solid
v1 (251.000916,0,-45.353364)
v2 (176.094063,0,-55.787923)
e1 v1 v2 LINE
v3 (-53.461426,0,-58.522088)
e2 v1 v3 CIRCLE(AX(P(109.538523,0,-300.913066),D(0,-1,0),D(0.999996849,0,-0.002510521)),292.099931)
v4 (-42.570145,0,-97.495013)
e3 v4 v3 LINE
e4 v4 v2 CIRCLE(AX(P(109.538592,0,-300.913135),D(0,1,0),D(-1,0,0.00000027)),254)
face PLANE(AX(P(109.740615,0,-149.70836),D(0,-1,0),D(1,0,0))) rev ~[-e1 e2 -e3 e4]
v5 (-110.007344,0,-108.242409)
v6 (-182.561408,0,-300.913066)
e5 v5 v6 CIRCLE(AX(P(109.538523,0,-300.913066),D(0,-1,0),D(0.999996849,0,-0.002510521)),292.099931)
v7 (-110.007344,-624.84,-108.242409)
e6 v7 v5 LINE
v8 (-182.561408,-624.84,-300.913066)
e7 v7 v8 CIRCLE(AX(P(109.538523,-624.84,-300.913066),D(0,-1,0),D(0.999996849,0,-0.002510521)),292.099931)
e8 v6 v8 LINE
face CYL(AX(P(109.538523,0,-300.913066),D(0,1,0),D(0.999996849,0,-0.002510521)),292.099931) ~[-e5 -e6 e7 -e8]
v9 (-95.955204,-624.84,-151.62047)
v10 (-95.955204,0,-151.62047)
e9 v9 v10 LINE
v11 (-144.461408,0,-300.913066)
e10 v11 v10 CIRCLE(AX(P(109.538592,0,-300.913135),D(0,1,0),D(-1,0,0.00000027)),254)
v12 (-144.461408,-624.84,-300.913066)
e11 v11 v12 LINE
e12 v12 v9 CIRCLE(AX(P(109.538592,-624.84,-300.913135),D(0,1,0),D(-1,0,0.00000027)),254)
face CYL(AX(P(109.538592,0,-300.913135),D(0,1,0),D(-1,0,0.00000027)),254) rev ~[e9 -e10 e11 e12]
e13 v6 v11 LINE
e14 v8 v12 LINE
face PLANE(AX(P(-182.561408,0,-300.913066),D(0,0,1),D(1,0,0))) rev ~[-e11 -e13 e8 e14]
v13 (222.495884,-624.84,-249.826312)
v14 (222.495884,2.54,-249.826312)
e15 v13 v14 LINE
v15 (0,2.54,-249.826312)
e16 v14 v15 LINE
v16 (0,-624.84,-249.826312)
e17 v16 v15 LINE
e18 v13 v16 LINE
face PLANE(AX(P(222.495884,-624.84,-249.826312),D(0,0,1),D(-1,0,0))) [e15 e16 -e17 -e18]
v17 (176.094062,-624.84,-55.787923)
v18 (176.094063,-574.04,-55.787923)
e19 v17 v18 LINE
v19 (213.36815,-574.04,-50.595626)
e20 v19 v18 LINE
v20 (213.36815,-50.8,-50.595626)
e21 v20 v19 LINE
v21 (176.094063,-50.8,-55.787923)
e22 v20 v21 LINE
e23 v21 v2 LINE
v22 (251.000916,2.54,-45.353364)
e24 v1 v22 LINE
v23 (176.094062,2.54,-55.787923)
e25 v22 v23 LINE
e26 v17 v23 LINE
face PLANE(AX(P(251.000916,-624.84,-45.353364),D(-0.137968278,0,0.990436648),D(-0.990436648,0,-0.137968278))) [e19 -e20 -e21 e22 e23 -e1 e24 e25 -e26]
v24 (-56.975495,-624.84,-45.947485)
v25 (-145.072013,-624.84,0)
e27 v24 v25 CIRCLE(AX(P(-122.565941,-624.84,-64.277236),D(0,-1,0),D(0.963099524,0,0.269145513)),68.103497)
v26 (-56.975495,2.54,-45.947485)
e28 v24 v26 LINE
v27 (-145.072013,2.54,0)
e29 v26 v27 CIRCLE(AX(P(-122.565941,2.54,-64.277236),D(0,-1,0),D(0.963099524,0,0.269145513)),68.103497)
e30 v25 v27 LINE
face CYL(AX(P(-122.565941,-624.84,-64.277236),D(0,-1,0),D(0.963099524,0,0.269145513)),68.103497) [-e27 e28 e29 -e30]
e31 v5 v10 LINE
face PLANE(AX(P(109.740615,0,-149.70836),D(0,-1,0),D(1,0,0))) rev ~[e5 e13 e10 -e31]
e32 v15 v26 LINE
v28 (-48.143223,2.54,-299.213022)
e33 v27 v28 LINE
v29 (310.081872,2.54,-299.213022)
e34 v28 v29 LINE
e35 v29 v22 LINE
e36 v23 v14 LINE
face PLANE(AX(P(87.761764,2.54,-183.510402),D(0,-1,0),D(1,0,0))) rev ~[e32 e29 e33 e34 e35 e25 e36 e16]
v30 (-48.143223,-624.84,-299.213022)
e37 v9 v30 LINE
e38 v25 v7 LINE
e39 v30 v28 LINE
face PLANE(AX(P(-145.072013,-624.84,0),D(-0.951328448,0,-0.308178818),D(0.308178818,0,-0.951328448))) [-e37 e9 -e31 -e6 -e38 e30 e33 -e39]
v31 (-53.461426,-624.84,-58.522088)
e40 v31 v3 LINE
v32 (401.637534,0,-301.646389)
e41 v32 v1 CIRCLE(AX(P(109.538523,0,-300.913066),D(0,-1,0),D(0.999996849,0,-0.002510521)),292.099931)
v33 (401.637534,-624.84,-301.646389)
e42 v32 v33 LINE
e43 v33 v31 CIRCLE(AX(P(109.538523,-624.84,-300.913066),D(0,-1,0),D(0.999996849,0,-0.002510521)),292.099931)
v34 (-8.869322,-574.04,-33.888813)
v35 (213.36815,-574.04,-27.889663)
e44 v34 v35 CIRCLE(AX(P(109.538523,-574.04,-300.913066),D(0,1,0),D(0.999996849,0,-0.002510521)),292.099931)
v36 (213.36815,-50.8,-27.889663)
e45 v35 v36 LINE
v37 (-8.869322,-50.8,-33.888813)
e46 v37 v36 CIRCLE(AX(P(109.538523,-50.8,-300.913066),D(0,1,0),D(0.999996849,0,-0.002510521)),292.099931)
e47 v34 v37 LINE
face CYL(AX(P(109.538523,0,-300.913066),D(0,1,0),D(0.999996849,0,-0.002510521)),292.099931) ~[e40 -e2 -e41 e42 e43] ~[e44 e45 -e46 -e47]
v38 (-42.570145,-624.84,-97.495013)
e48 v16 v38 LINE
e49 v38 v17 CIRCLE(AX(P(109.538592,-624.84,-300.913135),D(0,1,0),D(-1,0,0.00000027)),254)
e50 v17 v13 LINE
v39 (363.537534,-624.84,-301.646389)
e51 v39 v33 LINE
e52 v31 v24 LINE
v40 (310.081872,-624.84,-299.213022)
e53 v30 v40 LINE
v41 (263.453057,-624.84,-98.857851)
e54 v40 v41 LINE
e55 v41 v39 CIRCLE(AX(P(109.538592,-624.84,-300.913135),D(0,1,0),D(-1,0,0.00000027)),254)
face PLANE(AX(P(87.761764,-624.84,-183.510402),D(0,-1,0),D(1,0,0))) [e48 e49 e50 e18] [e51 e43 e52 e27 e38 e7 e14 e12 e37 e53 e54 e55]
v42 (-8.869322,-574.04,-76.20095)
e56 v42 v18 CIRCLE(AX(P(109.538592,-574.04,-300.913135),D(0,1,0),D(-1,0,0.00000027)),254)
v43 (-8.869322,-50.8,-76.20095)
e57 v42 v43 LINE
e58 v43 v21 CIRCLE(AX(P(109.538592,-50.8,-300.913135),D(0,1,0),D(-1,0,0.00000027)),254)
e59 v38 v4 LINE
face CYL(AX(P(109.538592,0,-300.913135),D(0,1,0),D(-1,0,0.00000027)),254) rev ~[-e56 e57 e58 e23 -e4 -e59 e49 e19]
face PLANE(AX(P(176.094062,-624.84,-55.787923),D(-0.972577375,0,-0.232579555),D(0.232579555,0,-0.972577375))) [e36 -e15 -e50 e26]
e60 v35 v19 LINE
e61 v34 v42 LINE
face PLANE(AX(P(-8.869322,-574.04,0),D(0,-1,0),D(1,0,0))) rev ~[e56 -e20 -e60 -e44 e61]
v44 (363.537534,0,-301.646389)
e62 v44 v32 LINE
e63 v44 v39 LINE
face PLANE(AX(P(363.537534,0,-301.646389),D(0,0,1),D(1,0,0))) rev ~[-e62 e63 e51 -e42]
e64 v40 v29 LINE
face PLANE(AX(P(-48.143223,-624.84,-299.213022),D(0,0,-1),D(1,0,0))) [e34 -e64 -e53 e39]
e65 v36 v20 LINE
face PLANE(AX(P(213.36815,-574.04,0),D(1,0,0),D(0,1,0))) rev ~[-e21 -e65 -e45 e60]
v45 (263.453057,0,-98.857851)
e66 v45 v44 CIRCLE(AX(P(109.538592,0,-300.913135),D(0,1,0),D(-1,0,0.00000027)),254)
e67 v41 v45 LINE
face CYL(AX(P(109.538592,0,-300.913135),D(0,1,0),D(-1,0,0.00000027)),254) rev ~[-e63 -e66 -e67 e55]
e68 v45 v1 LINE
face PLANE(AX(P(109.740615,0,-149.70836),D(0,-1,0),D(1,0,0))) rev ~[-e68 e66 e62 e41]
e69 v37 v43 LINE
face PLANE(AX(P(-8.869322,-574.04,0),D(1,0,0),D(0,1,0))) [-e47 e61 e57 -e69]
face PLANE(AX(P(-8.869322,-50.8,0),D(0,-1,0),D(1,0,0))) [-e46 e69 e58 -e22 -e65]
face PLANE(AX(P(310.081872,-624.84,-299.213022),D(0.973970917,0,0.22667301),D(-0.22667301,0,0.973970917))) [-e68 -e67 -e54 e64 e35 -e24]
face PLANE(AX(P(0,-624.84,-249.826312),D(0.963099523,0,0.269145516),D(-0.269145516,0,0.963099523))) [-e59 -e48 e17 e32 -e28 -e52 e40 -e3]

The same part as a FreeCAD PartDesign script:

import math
import FreeCAD as App
import Part
import Sketcher
Q = App.Units.Quantity


def add_polygon(sketch, points):
    """Adds a closed chain of lines whose ends are joined by coincident constraints."""
    first, n = sketch.GeometryCount, len(points)
    for a, b in zip(points, points[1:] + points[:1]):
        sketch.addGeometry(Part.LineSegment(App.Vector(*a, 0), App.Vector(*b, 0)), False)
    for i in range(n):
        sketch.addConstraint(Sketcher.Constraint("Coincident", first + i, 2, first + (i + 1) % n, 1))

doc = App.newDocument("Part")
params = doc.addObject("Spreadsheet::Sheet", "Params")
for row, (alias, value) in enumerate([
    ("sketch1_radius", "10 in"),
    ("sketch1_width", "1.5 in"),
    ("pad1_length", "24.6 in"),
    ("sketch2_height", "20.6 in"),
    ("pocket1_length", "3.9 in"),
    ("pad2_length", "24.7 in"),
], start=1):
    params.set(f"A{row}", alias)
    params.set(f"B{row}", "=" + value)
    params.setAlias(f"B{row}", alias)

body = doc.addObject("PartDesign::Body", "Body")

# Sketch on XZ plane
sketch1 = body.newObject("Sketcher::SketchObject", "Sketch")
sketch1.AttachmentSupport = (doc.getObject("XZ_Plane"), [""])
sketch1.MapMode = "FlatFace"
sketch1.addGeometry(Part.LineSegment(App.Vector(363.537534, -301.646389, 0), App.Vector(401.637534, -301.646389, 0)), False)
sketch1.addGeometry(Part.ArcOfCircle(Part.Circle(App.Vector(109.538523, -300.913066, 0), App.Vector(0, 0, 1), 292.099931), math.radians(-0.143842), math.radians(180)), False)
sketch1.addGeometry(Part.LineSegment(App.Vector(-182.561408, -300.913066, 0), App.Vector(-144.461408, -300.913066, 0)), False)
sketch1.addGeometry(Part.ArcOfCircle(Part.Circle(App.Vector(109.538592, -300.913135, 0), App.Vector(0, 0, 1), 254), math.radians(-0.165403), math.radians(179.999985)), False)
sketch1.addConstraint(Sketcher.Constraint("Coincident", 0, 2, 1, 1))
sketch1.addConstraint(Sketcher.Constraint("Coincident", 1, 2, 2, 1))
sketch1.addConstraint(Sketcher.Constraint("Coincident", 2, 2, 3, 2))
sketch1.addConstraint(Sketcher.Constraint("Coincident", 3, 1, 0, 1))
sketch1.addConstraint(Sketcher.Constraint("Horizontal", 0))
sketch1.addConstraint(Sketcher.Constraint("Horizontal", 2))
sketch1.addConstraint(Sketcher.Constraint("Equal", 0, 2))
sketch1.addConstraint(Sketcher.Constraint("Radius", 3, Q("10 in")))
sketch1.addConstraint(Sketcher.Constraint("DistanceX", 0, 1, 0, 2, Q("1.5 in")))
sketch1.addConstraint(Sketcher.Constraint("DistanceY", 0, 2, -1, 1, Q("301.646389 mm")))
sketch1.addConstraint(Sketcher.Constraint("DistanceX", 2, 2, -1, 1, Q("144.461408 mm")))
sketch1.addConstraint(Sketcher.Constraint("DistanceX", 3, 3, 0, 2, Q("292.098942 mm")))
sketch1.addConstraint(Sketcher.Constraint("DistanceY", 1, 3, -1, 1, Q("300.913066 mm")))
sketch1.addConstraint(Sketcher.Constraint("DistanceY", 1, 2, -1, 1, Q("300.913066 mm")))
sketch1.setExpression("Constraints[7]", "Params.sketch1_radius")
sketch1.setExpression("Constraints[8]", "Params.sketch1_width")
pad1 = body.newObject("PartDesign::Pad", "Pad")
pad1.Profile = sketch1
pad1.setExpression("Length", "Params.pad1_length")

# Sketch on XY plane
sketch2 = body.newObject("Sketcher::SketchObject", "Sketch001")
sketch2.AttachmentSupport = (doc.getObject("XY_Plane"), [""])
sketch2.MapMode = "FlatFace"
add_polygon(sketch2, [(-9, -51), (-9, -574), (213, -574), (213, -51)])  # lines 0-3
sketch2.addConstraint(Sketcher.Constraint("Vertical", 0))
sketch2.addConstraint(Sketcher.Constraint("Horizontal", 1))
sketch2.addConstraint(Sketcher.Constraint("Vertical", 2))
sketch2.addConstraint(Sketcher.Constraint("Horizontal", 3))
sketch2.addConstraint(Sketcher.Constraint("DistanceY", 0, 2, 0, 1, Q("20.6 in")))
sketch2.addConstraint(Sketcher.Constraint("DistanceY", 2, 2, -1, 1, Q("2 in")))
sketch2.addConstraint(Sketcher.Constraint("DistanceX", 1, 1, 1, 2, Q("222.237472 mm")))
sketch2.addConstraint(Sketcher.Constraint("DistanceX", -1, 1, 1, 2, Q("213.36815 mm")))
sketch2.setExpression("Constraints[8]", "Params.sketch2_height")
pocket1 = body.newObject("PartDesign::Pocket", "Pocket")
pocket1.Profile = sketch2
pocket1.setExpression("Length", "Params.pocket1_length")

# Sketch on XZ plane
sketch3 = body.newObject("Sketcher::SketchObject", "Sketch002")
sketch3.AttachmentSupport = (doc.getObject("XZ_Plane"), [""])
sketch3.MapMode = "FlatFace"
sketch3.AttachmentOffset = App.Placement(App.Vector(0, 0, 24.6 * 25.4), App.Rotation())
sketch3.addGeometry(Part.LineSegment(App.Vector(176, -56, 0), App.Vector(222, -250, 0)), False)
sketch3.addGeometry(Part.LineSegment(App.Vector(222, -250, 0), App.Vector(0, -250, 0)), False)
sketch3.addGeometry(Part.LineSegment(App.Vector(0, -250, 0), App.Vector(-57, -46, 0)), False)
sketch3.addGeometry(Part.ArcOfCircle(Part.Circle(App.Vector(-123, -64, 0), App.Vector(0, 0, 1), 68), math.radians(16), math.radians(109)), False)
sketch3.addGeometry(Part.LineSegment(App.Vector(-145, 0, 0), App.Vector(-48, -299, 0)), False)
sketch3.addGeometry(Part.LineSegment(App.Vector(-48, -299, 0), App.Vector(310, -299, 0)), False)
sketch3.addGeometry(Part.LineSegment(App.Vector(310, -299, 0), App.Vector(251, -45, 0)), False)
sketch3.addGeometry(Part.LineSegment(App.Vector(251, -45, 0), App.Vector(176, -56, 0)), False)
sketch3.addConstraint(Sketcher.Constraint("Coincident", 0, 2, 1, 1))
sketch3.addConstraint(Sketcher.Constraint("Coincident", 1, 2, 2, 1))
sketch3.addConstraint(Sketcher.Constraint("Tangent", 2, 2, 3, 1))
sketch3.addConstraint(Sketcher.Constraint("Coincident", 3, 2, 4, 1))
sketch3.addConstraint(Sketcher.Constraint("Coincident", 4, 2, 5, 1))
sketch3.addConstraint(Sketcher.Constraint("Coincident", 5, 2, 6, 1))
sketch3.addConstraint(Sketcher.Constraint("Coincident", 6, 2, 7, 1))
sketch3.addConstraint(Sketcher.Constraint("Coincident", 7, 2, 0, 1))
sketch3.addConstraint(Sketcher.Constraint("Horizontal", 1))
sketch3.addConstraint(Sketcher.Constraint("Horizontal", 5))
sketch3.addConstraint(Sketcher.Constraint("PointOnObject", 1, 2, -2))
sketch3.addConstraint(Sketcher.Constraint("PointOnObject", 3, 2, -1))
sketch3.addConstraint(Sketcher.Constraint("DistanceY", 3, 3, -1, 1, Q("2.5305998 in")))
sketch3.addConstraint(Sketcher.Constraint("Radius", 3, Q("68.103497 mm")))
sketch3.addConstraint(Sketcher.Constraint("Distance", 2, Q("211.6903 mm")))
sketch3.addConstraint(Sketcher.Constraint("DistanceY", 5, 2, 7, 2, Q("243.425099 mm")))
sketch3.addConstraint(Sketcher.Constraint("Distance", 4, Q("314.52126 mm")))
sketch3.addConstraint(Sketcher.Constraint("Distance", 6, Q("260.643982 mm")))
sketch3.addConstraint(Sketcher.Constraint("Distance", 7, Q("75.630132 mm")))
sketch3.addConstraint(Sketcher.Constraint("DistanceX", 1, 2, 1, 1, Q("222.495884 mm")))
sketch3.addConstraint(Sketcher.Constraint("DistanceX", 5, 1, 5, 2, Q("358.225095 mm")))
sketch3.addConstraint(Sketcher.Constraint("DistanceX", 3, 3, -1, 1, Q("122.565941 mm")))
sketch3.addConstraint(Sketcher.Constraint("DistanceX", -1, 1, 5, 2, Q("310.081872 mm")))
sketch3.addConstraint(Sketcher.Constraint("DistanceX", -1, 1, 7, 2, Q("176.094062 mm")))
pad2 = body.newObject("PartDesign::Pad", "Pad001")
pad2.Profile = sketch3
pad2.setExpression("Length", "Params.pad2_length")
pad2.Reversed = True

doc.recompute()
